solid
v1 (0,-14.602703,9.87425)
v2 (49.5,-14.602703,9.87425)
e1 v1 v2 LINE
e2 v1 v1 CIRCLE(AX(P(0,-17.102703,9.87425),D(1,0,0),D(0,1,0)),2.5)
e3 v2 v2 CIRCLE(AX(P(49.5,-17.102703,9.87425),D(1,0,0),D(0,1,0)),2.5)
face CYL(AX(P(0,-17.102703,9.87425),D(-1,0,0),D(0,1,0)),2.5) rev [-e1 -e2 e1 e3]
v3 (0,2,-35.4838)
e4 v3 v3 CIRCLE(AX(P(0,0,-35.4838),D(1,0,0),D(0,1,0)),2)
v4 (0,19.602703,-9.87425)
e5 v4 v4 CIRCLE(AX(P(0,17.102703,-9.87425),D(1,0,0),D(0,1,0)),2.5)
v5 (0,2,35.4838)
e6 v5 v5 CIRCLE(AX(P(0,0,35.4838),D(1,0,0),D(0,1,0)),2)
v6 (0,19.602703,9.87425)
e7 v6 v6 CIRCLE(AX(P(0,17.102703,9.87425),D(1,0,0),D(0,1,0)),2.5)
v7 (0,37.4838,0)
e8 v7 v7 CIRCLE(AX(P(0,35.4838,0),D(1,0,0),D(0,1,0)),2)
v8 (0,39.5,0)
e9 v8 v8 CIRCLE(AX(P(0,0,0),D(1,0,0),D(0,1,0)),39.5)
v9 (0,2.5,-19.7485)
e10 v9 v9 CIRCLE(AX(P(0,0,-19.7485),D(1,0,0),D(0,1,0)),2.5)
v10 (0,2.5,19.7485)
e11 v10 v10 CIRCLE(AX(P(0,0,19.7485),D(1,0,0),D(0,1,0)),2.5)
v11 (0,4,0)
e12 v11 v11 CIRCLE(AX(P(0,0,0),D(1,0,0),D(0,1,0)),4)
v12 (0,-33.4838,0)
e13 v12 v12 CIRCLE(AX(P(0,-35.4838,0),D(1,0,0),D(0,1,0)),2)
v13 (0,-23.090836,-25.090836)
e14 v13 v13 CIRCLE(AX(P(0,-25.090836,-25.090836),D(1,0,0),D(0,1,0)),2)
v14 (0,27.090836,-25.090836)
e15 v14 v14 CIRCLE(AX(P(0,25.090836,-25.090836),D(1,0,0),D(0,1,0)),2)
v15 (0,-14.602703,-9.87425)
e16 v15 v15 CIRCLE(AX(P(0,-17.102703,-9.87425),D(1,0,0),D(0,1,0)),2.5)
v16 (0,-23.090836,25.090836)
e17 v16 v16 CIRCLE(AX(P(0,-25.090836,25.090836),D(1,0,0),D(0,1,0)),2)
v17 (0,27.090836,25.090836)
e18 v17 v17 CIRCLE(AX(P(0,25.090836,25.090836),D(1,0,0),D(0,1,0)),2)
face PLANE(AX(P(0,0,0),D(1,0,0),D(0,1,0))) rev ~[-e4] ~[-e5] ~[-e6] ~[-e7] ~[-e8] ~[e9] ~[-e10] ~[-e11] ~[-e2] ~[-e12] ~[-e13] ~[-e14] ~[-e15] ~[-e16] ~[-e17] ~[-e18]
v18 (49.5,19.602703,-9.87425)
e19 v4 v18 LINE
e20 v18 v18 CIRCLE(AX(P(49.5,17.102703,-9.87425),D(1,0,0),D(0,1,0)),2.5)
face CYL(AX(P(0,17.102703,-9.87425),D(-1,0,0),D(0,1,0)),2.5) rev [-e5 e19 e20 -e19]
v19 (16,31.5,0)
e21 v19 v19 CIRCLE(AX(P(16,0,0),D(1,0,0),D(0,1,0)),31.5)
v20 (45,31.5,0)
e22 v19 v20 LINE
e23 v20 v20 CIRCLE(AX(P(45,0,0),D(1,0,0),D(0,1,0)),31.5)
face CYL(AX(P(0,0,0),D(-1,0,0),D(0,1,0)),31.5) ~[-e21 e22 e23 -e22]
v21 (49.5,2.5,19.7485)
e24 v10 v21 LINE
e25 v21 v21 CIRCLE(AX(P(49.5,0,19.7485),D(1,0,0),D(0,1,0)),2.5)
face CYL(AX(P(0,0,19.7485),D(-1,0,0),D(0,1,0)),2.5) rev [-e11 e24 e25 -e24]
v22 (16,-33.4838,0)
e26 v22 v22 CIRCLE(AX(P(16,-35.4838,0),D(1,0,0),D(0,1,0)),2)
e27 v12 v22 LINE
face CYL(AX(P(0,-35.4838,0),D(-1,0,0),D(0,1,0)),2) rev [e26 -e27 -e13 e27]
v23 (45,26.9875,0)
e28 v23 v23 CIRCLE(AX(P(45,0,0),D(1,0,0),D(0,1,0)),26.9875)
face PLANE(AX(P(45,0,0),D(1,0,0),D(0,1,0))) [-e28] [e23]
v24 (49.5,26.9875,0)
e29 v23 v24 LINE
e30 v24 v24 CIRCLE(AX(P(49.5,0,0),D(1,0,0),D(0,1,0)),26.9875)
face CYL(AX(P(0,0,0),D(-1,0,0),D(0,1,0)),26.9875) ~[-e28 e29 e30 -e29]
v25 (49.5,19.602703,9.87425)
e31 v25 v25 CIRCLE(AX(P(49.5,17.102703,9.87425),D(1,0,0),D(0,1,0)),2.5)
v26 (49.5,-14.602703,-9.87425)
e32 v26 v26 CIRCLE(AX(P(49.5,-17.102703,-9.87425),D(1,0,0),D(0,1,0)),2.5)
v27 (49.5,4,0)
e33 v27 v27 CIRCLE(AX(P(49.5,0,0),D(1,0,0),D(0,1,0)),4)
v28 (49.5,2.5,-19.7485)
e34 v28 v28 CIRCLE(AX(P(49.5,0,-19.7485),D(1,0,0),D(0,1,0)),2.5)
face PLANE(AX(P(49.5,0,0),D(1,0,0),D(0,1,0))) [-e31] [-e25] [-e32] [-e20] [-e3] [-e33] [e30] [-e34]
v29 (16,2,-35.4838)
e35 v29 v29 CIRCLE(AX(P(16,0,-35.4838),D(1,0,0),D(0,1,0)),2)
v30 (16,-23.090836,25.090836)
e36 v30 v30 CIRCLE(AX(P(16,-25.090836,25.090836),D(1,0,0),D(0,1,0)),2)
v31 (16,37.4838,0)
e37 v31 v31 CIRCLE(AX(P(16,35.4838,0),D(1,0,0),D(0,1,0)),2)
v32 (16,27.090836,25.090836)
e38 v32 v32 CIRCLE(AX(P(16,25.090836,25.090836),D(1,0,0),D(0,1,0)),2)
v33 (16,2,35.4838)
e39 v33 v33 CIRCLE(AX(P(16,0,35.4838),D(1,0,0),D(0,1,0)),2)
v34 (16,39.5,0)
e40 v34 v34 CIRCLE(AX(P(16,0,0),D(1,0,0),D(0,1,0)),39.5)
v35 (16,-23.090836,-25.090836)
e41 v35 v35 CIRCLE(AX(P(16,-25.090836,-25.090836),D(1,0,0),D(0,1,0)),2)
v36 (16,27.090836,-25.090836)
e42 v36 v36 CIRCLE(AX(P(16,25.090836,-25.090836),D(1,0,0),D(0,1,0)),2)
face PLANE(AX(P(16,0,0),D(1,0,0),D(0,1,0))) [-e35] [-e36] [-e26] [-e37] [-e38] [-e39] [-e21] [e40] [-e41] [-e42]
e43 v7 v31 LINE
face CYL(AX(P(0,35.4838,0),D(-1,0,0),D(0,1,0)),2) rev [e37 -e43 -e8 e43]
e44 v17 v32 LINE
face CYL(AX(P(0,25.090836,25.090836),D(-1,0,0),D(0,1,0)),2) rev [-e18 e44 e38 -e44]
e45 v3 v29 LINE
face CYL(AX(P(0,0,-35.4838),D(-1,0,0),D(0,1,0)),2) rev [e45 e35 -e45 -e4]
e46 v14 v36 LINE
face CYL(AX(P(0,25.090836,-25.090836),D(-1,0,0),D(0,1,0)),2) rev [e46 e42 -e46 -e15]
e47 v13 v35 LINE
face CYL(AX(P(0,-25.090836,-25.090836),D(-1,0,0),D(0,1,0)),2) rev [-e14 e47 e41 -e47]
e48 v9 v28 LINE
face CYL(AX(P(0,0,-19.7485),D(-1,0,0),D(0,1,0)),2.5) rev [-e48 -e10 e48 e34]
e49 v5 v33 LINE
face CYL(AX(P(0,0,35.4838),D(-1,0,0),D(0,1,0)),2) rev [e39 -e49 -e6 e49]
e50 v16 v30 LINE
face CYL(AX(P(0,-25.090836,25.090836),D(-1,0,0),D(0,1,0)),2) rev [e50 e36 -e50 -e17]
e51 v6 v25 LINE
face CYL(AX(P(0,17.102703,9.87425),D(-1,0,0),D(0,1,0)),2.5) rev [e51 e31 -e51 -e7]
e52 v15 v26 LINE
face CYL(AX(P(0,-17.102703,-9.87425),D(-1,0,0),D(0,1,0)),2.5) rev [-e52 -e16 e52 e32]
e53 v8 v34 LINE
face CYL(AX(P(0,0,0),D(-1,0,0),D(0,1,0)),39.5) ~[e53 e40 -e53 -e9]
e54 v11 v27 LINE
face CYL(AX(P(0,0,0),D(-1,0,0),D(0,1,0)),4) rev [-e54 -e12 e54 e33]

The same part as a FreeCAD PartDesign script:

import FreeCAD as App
import Part
import Sketcher

doc = App.newDocument("Part")
body = doc.addObject("PartDesign::Body", "Body")

sketch1 = doc.addObject("Sketcher::SketchObject", "Sketch")
body.addObject(sketch1)
sketch1.AttachmentSupport = (doc.YZ_Plane, [""])
sketch1.MapMode = "FlatFace"
sketch1.addGeometry(Part.Circle(App.Vector(0, 0, 0), App.Vector(0, 0, 1), 32), False)
sketch1.addGeometry(Part.Circle(App.Vector(0, 0, 0), App.Vector(0, 0, 1), 27), False)
sketch1.addConstraint(Sketcher.Constraint("Coincident", 0, 3, -1, 1))
sketch1.addConstraint(Sketcher.Constraint("Coincident", 1, 3, -1, 1))
sketch1.addConstraint(Sketcher.Constraint("Diameter", 0, 63.0))
sketch1.addConstraint(Sketcher.Constraint("Diameter", 1, 53.975))
pad1 = doc.addObject("PartDesign::Pad", "Pad")
body.addObject(pad1)
pad1.Profile = sketch1
pad1.Length = 45

sketch2 = doc.addObject("Sketcher::SketchObject", "Sketch001")
body.addObject(sketch2)
sketch2.AttachmentSupport = (doc.YZ_Plane, [""])
sketch2.MapMode = "FlatFace"
sketch2.addGeometry(Part.Circle(App.Vector(0, 0, 0), App.Vector(0, 0, 1), 39.5), False)
sketch2.addGeometry(Part.Circle(App.Vector(-25.1, -25.1, 0), App.Vector(0, 0, 1), 2), False)
sketch2.addGeometry(Part.Circle(App.Vector(0, -35.5, 0), App.Vector(0, 0, 1), 2), False)
sketch2.addGeometry(Part.Circle(App.Vector(25.1, -25.1, 0), App.Vector(0, 0, 1), 2), False)
sketch2.addGeometry(Part.Circle(App.Vector(-35.5, 0, 0), App.Vector(0, 0, 1), 2), False)
sketch2.addGeometry(Part.Circle(App.Vector(-25.1, 25.1, 0), App.Vector(0, 0, 1), 2), False)
sketch2.addGeometry(Part.Circle(App.Vector(0, 0, 0), App.Vector(0, 0, 1), 31.5), False)
sketch2.addGeometry(Part.Circle(App.Vector(35.5, 0, 0), App.Vector(0, 0, 1), 2), False)
sketch2.addGeometry(Part.Circle(App.Vector(0, 35.5, 0), App.Vector(0, 0, 1), 2), False)
sketch2.addGeometry(Part.Circle(App.Vector(25.1, 25.1, 0), App.Vector(0, 0, 1), 2), False)
sketch2.addConstraint(Sketcher.Constraint("Coincident", 0, 3, -1, 1))
sketch2.addConstraint(Sketcher.Constraint("Coincident", 6, 3, -1, 1))
sketch2.addConstraint(Sketcher.Constraint("Equal", 1, 2))
sketch2.addConstraint(Sketcher.Constraint("Equal", 2, 3))
sketch2.addConstraint(Sketcher.Constraint("Equal", 3, 4))
sketch2.addConstraint(Sketcher.Constraint("Equal", 4, 5))
sketch2.addConstraint(Sketcher.Constraint("Equal", 5, 7))
sketch2.addConstraint(Sketcher.Constraint("Equal", 7, 8))
sketch2.addConstraint(Sketcher.Constraint("Equal", 8, 9))
sketch2.addConstraint(Sketcher.Constraint("Symmetric", 3, 3, 5, 3, -1, 1))
sketch2.addConstraint(Sketcher.Constraint("Symmetric", 4, 3, 7, 3, -1, 1))
sketch2.addConstraint(Sketcher.Constraint("Symmetric", 2, 3, 8, 3, -1, 1))
sketch2.addConstraint(Sketcher.Constraint("Symmetric", 1, 3, 9, 3, -1, 1))
sketch2.addConstraint(Sketcher.Constraint("Symmetric", 1, 3, 3, 3, -2))
sketch2.addConstraint(Sketcher.Constraint("PointOnObject", 2, 3, -2))
sketch2.addConstraint(Sketcher.Constraint("PointOnObject", 4, 3, -1))
sketch2.addConstraint(Sketcher.Constraint("Diameter", 0, 79.0))
sketch2.addConstraint(Sketcher.Constraint("Diameter", 1, 4.0))
sketch2.addConstraint(Sketcher.Constraint("Diameter", 6, 63.0))
sketch2.addConstraint(Sketcher.Constraint("DistanceY", 2, 3, -1, 1, 35.4838))
sketch2.addConstraint(Sketcher.Constraint("DistanceX", 4, 3, -1, 1, 35.4838))
sketch2.addConstraint(Sketcher.Constraint("DistanceX", 1, 3, -1, 1, 25.090836))
sketch2.addConstraint(Sketcher.Constraint("DistanceY", 1, 3, -1, 1, 25.090836))
pad2 = doc.addObject("PartDesign::Pad", "Pad001")
body.addObject(pad2)
pad2.Profile = sketch2
pad2.Length = 16

sketch3 = doc.addObject("Sketcher::SketchObject", "Sketch002")
body.addObject(sketch3)
sketch3.AttachmentSupport = (doc.YZ_Plane, [""])
sketch3.MapMode = "FlatFace"
sketch3.addGeometry(Part.Circle(App.Vector(0, 0, 0), App.Vector(0, 0, 1), 27), False)
sketch3.addGeometry(Part.Circle(App.Vector(-17.1, -9.9, 0), App.Vector(0, 0, 1), 2.5), False)
sketch3.addGeometry(Part.Circle(App.Vector(0, -19.7, 0), App.Vector(0, 0, 1), 2.5), False)
sketch3.addGeometry(Part.Circle(App.Vector(17.1, -9.9, 0), App.Vector(0, 0, 1), 2.5), False)
sketch3.addGeometry(Part.Circle(App.Vector(-17.1, 9.9, 0), App.Vector(0, 0, 1), 2.5), False)
sketch3.addGeometry(Part.Circle(App.Vector(0, 0, 0), App.Vector(0, 0, 1), 4), False)
sketch3.addGeometry(Part.Circle(App.Vector(17.1, 9.9, 0), App.Vector(0, 0, 1), 2.5), False)
sketch3.addGeometry(Part.Circle(App.Vector(0, 19.7, 0), App.Vector(0, 0, 1), 2.5), False)
sketch3.addConstraint(Sketcher.Constraint("Coincident", 0, 3, -1, 1))
sketch3.addConstraint(Sketcher.Constraint("Coincident", 5, 3, -1, 1))
sketch3.addConstraint(Sketcher.Constraint("Equal", 1, 2))
sketch3.addConstraint(Sketcher.Constraint("Equal", 2, 3))
sketch3.addConstraint(Sketcher.Constraint("Equal", 3, 4))
sketch3.addConstraint(Sketcher.Constraint("Equal", 4, 6))
sketch3.addConstraint(Sketcher.Constraint("Equal", 6, 7))
sketch3.addConstraint(Sketcher.Constraint("Symmetric", 3, 3, 4, 3, -1, 1))
sketch3.addConstraint(Sketcher.Constraint("Symmetric", 1, 3, 6, 3, -1, 1))
sketch3.addConstraint(Sketcher.Constraint("Symmetric", 2, 3, 7, 3, -1, 1))
sketch3.addConstraint(Sketcher.Constraint("Symmetric", 1, 3, 3, 3, -2))
sketch3.addConstraint(Sketcher.Constraint("PointOnObject", 2, 3, -2))
sketch3.addConstraint(Sketcher.Constraint("Diameter", 1, 5.0))
sketch3.addConstraint(Sketcher.Constraint("Diameter", 5, 8.0))
sketch3.addConstraint(Sketcher.Constraint("Diameter", 0, 53.975))
sketch3.addConstraint(Sketcher.Constraint("DistanceY", 2, 3, -1, 1, 19.7485))
sketch3.addConstraint(Sketcher.Constraint("DistanceY", 1, 3, 4, 3, 19.7485))
sketch3.addConstraint(Sketcher.Constraint("DistanceX", 1, 3, -1, 1, 17.102703))
pad3 = doc.addObject("PartDesign::Pad", "Pad002")
body.addObject(pad3)
pad3.Profile = sketch3
pad3.Length = 49.5

doc.recompute()
